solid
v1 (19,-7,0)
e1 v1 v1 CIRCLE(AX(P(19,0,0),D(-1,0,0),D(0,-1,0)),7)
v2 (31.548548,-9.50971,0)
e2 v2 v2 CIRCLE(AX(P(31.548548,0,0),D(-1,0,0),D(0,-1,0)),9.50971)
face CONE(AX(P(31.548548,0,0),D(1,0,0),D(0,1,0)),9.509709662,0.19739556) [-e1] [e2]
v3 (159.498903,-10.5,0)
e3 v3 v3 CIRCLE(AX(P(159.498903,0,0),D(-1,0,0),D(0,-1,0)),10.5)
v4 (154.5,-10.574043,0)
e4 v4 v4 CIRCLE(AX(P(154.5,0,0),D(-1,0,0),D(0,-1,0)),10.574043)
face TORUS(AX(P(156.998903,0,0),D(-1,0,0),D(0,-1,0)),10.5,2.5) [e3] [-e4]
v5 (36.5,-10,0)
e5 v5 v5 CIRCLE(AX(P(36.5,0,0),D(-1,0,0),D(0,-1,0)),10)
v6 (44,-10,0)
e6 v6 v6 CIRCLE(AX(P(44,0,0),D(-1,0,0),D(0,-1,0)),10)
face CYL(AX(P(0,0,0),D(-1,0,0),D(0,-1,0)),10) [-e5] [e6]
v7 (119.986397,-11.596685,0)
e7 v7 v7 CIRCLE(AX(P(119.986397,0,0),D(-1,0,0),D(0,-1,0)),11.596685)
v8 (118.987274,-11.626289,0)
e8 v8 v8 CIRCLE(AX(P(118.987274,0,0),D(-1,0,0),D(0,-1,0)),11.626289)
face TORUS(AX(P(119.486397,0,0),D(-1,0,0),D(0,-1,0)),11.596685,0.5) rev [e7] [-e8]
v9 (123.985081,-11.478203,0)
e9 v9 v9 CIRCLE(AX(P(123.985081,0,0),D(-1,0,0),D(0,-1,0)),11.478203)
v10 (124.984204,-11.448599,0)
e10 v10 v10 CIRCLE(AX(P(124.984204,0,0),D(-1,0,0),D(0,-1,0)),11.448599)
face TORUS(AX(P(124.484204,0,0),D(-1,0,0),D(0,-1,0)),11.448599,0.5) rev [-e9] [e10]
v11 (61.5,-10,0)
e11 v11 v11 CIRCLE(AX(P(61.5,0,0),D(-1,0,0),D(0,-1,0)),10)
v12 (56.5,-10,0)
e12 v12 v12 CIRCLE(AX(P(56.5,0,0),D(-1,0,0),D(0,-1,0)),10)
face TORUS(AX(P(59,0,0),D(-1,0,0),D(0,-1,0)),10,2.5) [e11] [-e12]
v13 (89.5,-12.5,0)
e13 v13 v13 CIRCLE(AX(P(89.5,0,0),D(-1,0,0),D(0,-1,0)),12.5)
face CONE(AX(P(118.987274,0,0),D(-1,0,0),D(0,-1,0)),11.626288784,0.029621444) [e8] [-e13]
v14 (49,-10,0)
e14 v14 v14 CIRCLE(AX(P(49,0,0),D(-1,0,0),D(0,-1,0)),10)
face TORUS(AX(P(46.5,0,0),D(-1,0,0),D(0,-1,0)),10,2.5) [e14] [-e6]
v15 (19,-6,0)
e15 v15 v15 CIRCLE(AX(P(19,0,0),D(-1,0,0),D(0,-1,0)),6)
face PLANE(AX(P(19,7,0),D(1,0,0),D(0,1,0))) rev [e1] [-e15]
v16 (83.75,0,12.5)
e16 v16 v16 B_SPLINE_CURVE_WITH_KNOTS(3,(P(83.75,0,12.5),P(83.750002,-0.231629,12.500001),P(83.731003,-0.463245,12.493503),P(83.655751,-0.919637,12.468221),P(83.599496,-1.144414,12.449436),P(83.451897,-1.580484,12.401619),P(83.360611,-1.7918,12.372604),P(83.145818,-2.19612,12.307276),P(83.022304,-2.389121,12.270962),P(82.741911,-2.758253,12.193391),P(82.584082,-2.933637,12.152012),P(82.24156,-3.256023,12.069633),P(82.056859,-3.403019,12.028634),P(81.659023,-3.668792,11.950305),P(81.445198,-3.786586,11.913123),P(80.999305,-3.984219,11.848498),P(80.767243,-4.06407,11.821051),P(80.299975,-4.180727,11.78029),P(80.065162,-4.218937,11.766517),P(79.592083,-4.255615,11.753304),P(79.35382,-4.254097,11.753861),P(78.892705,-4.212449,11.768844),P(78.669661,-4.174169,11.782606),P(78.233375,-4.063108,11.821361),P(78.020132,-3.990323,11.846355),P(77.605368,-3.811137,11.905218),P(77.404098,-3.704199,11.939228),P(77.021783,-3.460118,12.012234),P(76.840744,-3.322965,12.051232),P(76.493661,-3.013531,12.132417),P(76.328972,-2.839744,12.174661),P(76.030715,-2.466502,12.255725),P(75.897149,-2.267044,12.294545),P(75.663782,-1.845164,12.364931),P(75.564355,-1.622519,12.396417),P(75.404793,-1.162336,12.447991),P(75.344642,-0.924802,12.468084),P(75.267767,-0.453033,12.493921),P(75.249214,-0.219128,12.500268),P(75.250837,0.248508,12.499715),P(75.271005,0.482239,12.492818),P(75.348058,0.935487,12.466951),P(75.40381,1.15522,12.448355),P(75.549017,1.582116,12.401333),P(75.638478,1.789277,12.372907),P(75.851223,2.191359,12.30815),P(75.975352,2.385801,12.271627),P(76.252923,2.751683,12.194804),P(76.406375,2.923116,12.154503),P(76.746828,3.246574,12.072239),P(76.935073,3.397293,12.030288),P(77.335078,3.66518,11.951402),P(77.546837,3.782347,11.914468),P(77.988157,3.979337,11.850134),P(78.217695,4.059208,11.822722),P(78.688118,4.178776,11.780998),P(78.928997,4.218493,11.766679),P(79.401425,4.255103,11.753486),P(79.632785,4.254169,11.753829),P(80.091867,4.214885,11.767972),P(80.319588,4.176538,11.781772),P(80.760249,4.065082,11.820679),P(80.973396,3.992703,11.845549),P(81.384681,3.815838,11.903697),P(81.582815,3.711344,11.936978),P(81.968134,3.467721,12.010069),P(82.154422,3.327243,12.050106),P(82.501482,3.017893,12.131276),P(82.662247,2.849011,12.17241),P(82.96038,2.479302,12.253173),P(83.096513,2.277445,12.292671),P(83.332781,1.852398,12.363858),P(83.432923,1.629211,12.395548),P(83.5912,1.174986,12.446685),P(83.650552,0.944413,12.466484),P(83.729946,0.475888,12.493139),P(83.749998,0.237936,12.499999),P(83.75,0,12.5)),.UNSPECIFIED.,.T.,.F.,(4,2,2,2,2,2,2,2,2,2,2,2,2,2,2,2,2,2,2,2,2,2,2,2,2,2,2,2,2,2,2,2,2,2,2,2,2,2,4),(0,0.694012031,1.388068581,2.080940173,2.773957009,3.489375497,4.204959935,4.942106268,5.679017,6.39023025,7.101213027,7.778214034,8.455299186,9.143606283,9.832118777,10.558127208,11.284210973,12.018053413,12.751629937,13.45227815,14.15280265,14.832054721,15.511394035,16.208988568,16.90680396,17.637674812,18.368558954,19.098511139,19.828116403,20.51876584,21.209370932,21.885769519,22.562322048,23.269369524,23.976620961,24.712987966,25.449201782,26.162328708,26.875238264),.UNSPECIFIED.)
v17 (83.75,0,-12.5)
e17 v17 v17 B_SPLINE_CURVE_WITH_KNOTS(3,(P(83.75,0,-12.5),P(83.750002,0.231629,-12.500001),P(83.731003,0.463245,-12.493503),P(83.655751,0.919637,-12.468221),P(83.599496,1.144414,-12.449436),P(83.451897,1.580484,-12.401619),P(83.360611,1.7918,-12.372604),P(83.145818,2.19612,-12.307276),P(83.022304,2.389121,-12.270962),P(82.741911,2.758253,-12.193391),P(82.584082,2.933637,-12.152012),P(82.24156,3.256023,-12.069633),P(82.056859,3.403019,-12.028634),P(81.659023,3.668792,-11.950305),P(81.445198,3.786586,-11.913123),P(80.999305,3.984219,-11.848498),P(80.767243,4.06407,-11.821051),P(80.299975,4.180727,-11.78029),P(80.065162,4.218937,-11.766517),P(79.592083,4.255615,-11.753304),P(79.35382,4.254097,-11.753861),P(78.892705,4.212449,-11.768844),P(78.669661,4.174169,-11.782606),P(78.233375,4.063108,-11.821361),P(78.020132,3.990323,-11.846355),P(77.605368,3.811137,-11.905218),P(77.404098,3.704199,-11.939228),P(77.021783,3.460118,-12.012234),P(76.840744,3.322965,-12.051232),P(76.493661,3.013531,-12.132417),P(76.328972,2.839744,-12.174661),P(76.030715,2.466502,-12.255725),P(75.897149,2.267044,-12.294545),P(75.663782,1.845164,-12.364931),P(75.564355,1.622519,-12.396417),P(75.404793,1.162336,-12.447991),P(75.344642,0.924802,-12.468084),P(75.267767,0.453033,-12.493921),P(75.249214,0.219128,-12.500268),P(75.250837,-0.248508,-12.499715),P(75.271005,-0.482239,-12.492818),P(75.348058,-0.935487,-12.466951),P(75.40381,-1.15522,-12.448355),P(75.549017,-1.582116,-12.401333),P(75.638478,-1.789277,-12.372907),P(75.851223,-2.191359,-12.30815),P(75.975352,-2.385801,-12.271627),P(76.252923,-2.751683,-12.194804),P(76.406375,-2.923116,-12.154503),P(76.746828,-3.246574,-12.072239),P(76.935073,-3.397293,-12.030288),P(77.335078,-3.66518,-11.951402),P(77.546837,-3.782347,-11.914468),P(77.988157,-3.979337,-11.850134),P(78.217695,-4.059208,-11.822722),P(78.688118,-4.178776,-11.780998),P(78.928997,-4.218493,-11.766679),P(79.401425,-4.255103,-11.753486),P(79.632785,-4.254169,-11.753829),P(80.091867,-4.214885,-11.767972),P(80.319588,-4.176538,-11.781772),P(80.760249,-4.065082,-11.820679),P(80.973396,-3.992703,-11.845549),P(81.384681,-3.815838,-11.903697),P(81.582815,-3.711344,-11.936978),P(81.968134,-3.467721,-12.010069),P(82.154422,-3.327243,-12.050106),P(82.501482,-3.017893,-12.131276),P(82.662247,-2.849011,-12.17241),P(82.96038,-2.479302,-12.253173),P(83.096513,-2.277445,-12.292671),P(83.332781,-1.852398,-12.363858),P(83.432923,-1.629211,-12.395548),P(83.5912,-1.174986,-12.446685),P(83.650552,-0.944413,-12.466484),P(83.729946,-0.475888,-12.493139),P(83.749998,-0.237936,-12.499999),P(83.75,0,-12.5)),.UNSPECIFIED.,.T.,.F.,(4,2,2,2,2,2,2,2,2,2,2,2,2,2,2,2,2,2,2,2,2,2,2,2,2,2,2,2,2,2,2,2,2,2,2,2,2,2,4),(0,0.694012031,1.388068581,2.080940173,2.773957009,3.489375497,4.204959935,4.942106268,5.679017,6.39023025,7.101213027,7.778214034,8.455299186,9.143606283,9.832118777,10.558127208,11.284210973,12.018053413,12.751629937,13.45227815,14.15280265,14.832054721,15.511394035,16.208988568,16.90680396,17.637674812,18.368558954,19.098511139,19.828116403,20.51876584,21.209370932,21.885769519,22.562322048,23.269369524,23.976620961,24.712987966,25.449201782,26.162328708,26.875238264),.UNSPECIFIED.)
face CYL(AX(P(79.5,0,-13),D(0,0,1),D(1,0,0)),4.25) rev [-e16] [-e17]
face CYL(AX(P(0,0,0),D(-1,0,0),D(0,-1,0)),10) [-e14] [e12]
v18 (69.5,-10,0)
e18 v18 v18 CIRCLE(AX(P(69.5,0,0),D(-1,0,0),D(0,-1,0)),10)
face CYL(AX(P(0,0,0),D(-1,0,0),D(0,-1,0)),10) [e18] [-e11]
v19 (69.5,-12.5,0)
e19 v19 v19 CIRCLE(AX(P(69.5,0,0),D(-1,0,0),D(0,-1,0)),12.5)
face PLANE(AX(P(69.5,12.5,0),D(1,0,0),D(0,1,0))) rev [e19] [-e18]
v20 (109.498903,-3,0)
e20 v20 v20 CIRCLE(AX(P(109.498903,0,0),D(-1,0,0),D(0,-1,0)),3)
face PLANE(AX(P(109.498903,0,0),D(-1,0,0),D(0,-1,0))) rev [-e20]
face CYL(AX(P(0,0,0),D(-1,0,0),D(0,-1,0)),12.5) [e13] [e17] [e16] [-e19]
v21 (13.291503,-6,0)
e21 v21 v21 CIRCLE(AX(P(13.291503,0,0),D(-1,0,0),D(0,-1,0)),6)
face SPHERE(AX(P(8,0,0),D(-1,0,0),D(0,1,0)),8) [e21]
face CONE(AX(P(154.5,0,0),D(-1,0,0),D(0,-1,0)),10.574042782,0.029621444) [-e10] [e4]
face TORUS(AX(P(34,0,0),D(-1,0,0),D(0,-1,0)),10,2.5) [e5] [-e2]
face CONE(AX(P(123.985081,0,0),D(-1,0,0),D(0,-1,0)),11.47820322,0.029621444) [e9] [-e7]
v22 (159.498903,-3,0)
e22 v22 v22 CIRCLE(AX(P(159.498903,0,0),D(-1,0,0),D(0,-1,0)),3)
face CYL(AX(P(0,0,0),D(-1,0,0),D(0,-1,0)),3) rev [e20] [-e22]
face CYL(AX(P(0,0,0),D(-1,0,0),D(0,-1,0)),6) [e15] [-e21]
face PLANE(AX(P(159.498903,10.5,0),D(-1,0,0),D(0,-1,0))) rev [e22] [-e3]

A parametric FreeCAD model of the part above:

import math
import FreeCAD as App
import Part
import Sketcher
from FreeCAD import Vector
Q = App.Units.Quantity

doc = App.newDocument("Part")
params = doc.addObject("Spreadsheet::Sheet", "Params")
for row, (alias, value) in enumerate([
    ("sketch1_radius", "8 mm"),
    ("sketch1_radius2", "2.5 mm"),
    ("sketch1_radius3", "0.5 mm"),
    ("sketch1_width", "50 mm"),
    ("sketch1_width2", "20 mm"),
    ("revolution_angle", "360 deg"),
    ("sketch2_diameter", "8.5 mm"),
], start=1):
    params.set(f"A{row}", alias)
    params.set(f"B{row}", "=" + value)
    params.setAlias(f"B{row}", alias)

body = doc.addObject("PartDesign::Body", "Body")

# Sketch on XY plane
sketch1 = body.newObject("Sketcher::SketchObject", "Sketch")
sketch1.AttachmentSupport = (doc.getObject("XY_Plane"), [""])
sketch1.MapMode = "FlatFace"
sketch1.addGeometry([
    Part.LineSegment(Vector(0, 0, 0), Vector(109.5, 0, 0)),  # 0
    Part.LineSegment(Vector(109.5, 0, 0), Vector(109.5, 3, 0)),  # 1
    Part.LineSegment(Vector(109.5, 3, 0), Vector(159.5, 3, 0)),  # 2
    Part.LineSegment(Vector(159.5, 3, 0), Vector(159.5, 10.5, 0)),  # 3
    Part.ArcOfCircle(Part.Circle(Vector(157, 10.5, 0), Vector(0, 0, 1), 2.5), math.radians(0), math.radians(178)),  # 4
    Part.LineSegment(Vector(154.5, 10.6, 0), Vector(125, 11.4, 0)),  # 5
    Part.ArcOfCircle(Part.Circle(Vector(124.5, 11.4, 0), Vector(0, 0, 1), 0.5), math.radians(177), math.radians(360)),  # 6
    Part.LineSegment(Vector(124, 11.5, 0), Vector(120, 11.6, 0)),  # 7
    Part.ArcOfCircle(Part.Circle(Vector(119.5, 11.6, 0), Vector(0, 0, 1), 0.5), math.radians(177), math.radians(360)),  # 8
    Part.LineSegment(Vector(119, 11.6, 0), Vector(89.5, 12.5, 0)),  # 9
    Part.LineSegment(Vector(89.5, 12.5, 0), Vector(69.5, 12.5, 0)),  # 10
    Part.LineSegment(Vector(69.5, 12.5, 0), Vector(69.5, 10, 0)),  # 11
    Part.LineSegment(Vector(69.5, 10, 0), Vector(61.5, 10, 0)),  # 12
    Part.ArcOfCircle(Part.Circle(Vector(59, 10, 0), Vector(0, 0, 1), 2.5), math.radians(0), math.radians(180)),  # 13
    Part.LineSegment(Vector(56.5, 10, 0), Vector(49, 10, 0)),  # 14
    Part.ArcOfCircle(Part.Circle(Vector(46.5, 10, 0), Vector(0, 0, 1), 2.5), math.radians(0), math.radians(180)),  # 15
    Part.LineSegment(Vector(44, 10, 0), Vector(36.5, 10, 0)),  # 16
    Part.ArcOfCircle(Part.Circle(Vector(34, 10, 0), Vector(0, 0, 1), 2.5), math.radians(0), math.radians(191)),  # 17
    Part.LineSegment(Vector(31.5, 9.5, 0), Vector(19, 7, 0)),  # 18
    Part.LineSegment(Vector(19, 7, 0), Vector(19, 6, 0)),  # 19
    Part.LineSegment(Vector(19, 6, 0), Vector(13.3, 6, 0)),  # 20
    Part.ArcOfCircle(Part.Circle(Vector(8, 0, 0), Vector(0, 0, 1), 8), math.radians(49), math.radians(180)),  # 21
], False)
sketch1.addConstraint([
    Sketcher.Constraint("Coincident", 0, 2, 1, 1),
    Sketcher.Constraint("Coincident", 1, 2, 2, 1),
    Sketcher.Constraint("Coincident", 2, 2, 3, 1),
    Sketcher.Constraint("Tangent", 3, 2, 4, 1),
    Sketcher.Constraint("Coincident", 4, 2, 5, 1),
    Sketcher.Constraint("Coincident", 5, 2, 6, 2),
    Sketcher.Constraint("Coincident", 6, 1, 7, 1),
    Sketcher.Constraint("Coincident", 7, 2, 8, 2),
    Sketcher.Constraint("Coincident", 8, 1, 9, 1),
    Sketcher.Constraint("Coincident", 9, 2, 10, 1),
    Sketcher.Constraint("Coincident", 10, 2, 11, 1),
    Sketcher.Constraint("Coincident", 11, 2, 12, 1),
    Sketcher.Constraint("Coincident", 12, 2, 13, 1),
    Sketcher.Constraint("Coincident", 13, 2, 14, 1),
    Sketcher.Constraint("Coincident", 14, 2, 15, 1),
    Sketcher.Constraint("Coincident", 15, 2, 16, 1),
    Sketcher.Constraint("Coincident", 16, 2, 17, 1),
    Sketcher.Constraint("Coincident", 17, 2, 18, 1),
    Sketcher.Constraint("Coincident", 18, 2, 19, 1),
    Sketcher.Constraint("Coincident", 19, 2, 20, 1),
    Sketcher.Constraint("Coincident", 20, 2, 21, 1),
    Sketcher.Constraint("Coincident", 21, 2, 0, 1),
    Sketcher.Constraint("Horizontal", 0),
    Sketcher.Constraint("Vertical", 1),
    Sketcher.Constraint("Horizontal", 2),
    Sketcher.Constraint("Vertical", 3),
    Sketcher.Constraint("Horizontal", 10),
    Sketcher.Constraint("Vertical", 11),
    Sketcher.Constraint("Horizontal", 12),
    Sketcher.Constraint("Horizontal", 14),
    Sketcher.Constraint("Horizontal", 16),
    Sketcher.Constraint("Vertical", 19),
    Sketcher.Constraint("Horizontal", 20),
    Sketcher.Constraint("Coincident", 21, 2, -1, 1),
    Sketcher.Constraint("Equal", 6, 8),
    Sketcher.Constraint("Equal", 4, 13),
    Sketcher.Constraint("Equal", 13, 15),
    Sketcher.Constraint("Equal", 15, 17),
    Sketcher.Constraint("PointOnObject", 21, 3, -1),
    Sketcher.Constraint("Parallel", 5, 7),
    Sketcher.Constraint("Parallel", 7, 9),
    Sketcher.Constraint("Horizontal", 13, 3, 15, 3),
    Sketcher.Constraint("Horizontal", 15, 3, 17, 3),
    Sketcher.Constraint("Horizontal", 6, 3, 5, 2),
    Sketcher.Constraint("Horizontal", 8, 3, 7, 2),
    Sketcher.Constraint("Horizontal", 17, 3, 11, 2),
    Sketcher.Constraint("Horizontal", 12, 2, 13, 2),
    Sketcher.Constraint("Horizontal", 14, 2, 15, 2),
    Sketcher.Constraint("Equal", 14, 16),
    Sketcher.Constraint("Equal", 16, 3),
    Sketcher.Constraint("Radius", 21, Q("8 mm")),
    Sketcher.Constraint("Radius", 4, Q("2.5 mm")),
    Sketcher.Constraint("Radius", 6, Q("0.5 mm")),
    Sketcher.Constraint("DistanceX", 2, 1, 2, 2, Q("50 mm")),
    Sketcher.Constraint("DistanceX", 10, 2, 10, 1, Q("20 mm")),
    Sketcher.Constraint("DistanceX", 12, 2, 12, 1, Q("8 mm")),
    Sketcher.Constraint("DistanceY", 1, 1, 1, 2, Q("3 mm")),
    Sketcher.Constraint("DistanceY", 19, 2, 19, 1, Q("1 mm")),
    Sketcher.Constraint("DistanceX", 14, 2, 14, 1, Q("7.5 mm")),
    Sketcher.Constraint("DistanceY", 11, 2, 11, 1, Q("2.5 mm")),
    Sketcher.Constraint("DistanceX", -1, 1, 13, 3, Q("59 mm")),
    Sketcher.Constraint("DistanceY", -1, 1, 13, 3, Q("10 mm")),
    Sketcher.Constraint("DistanceX", -1, 1, 18, 2, Q("19 mm")),
    Sketcher.Constraint("DistanceY", -1, 1, 18, 2, Q("7 mm")),
    Sketcher.Constraint("DistanceX", -1, 1, 4, 2, Q("154.5 mm")),
    Sketcher.Constraint("DistanceY", -1, 1, 6, 3, Q("11.448599 mm")),
    Sketcher.Constraint("DistanceX", 6, 3, 4, 3, Q("32.514699 mm")),
    Sketcher.Constraint("Distance", 7, Q("4.000439 mm")),
    Sketcher.Constraint("DistanceX", 0, 1, 0, 2, Q("109.498903 mm")),
    Sketcher.Constraint("DistanceX", -1, 1, 6, 1, Q("123.985081 mm")),
    Sketcher.Constraint("DistanceX", -1, 1, 17, 2, Q("31.548548 mm")),
])
sketch1.setExpression("Constraints[50]", "Params.sketch1_radius")
sketch1.setExpression("Constraints[51]", "Params.sketch1_radius2")
sketch1.setExpression("Constraints[52]", "Params.sketch1_radius3")
sketch1.setExpression("Constraints[53]", "Params.sketch1_width")
sketch1.setExpression("Constraints[54]", "Params.sketch1_width2")
revolution = body.newObject("PartDesign::Revolution", "Revolution")
revolution.Profile = sketch1
revolution.ReferenceAxis = (sketch1, ["H_Axis"])
revolution.setExpression("Angle", "Params.revolution_angle")

# Sketch on XY plane
sketch2 = body.newObject("Sketcher::SketchObject", "Sketch001")
sketch2.AttachmentSupport = (doc.getObject("XY_Plane"), [""])
sketch2.MapMode = "FlatFace"
sketch2.addGeometry(Part.Circle(Vector(79.5, 0, 0), Vector(0, 0, 1), 4.2), False)
sketch2.addConstraint([
    Sketcher.Constraint("PointOnObject", 0, 3, -1),
    Sketcher.Constraint("Diameter", 0, Q("8.5 mm")),
    Sketcher.Constraint("DistanceX", -1, 1, 0, 3, Q("79.5 mm")),
])
sketch2.setExpression("Constraints[1]", "Params.sketch2_diameter")
pocket1 = body.newObject("PartDesign::Pocket", "Pocket")
pocket1.Profile = sketch2
pocket1.Type = "ThroughAll"
pocket1.Midplane = True

doc.recompute()
